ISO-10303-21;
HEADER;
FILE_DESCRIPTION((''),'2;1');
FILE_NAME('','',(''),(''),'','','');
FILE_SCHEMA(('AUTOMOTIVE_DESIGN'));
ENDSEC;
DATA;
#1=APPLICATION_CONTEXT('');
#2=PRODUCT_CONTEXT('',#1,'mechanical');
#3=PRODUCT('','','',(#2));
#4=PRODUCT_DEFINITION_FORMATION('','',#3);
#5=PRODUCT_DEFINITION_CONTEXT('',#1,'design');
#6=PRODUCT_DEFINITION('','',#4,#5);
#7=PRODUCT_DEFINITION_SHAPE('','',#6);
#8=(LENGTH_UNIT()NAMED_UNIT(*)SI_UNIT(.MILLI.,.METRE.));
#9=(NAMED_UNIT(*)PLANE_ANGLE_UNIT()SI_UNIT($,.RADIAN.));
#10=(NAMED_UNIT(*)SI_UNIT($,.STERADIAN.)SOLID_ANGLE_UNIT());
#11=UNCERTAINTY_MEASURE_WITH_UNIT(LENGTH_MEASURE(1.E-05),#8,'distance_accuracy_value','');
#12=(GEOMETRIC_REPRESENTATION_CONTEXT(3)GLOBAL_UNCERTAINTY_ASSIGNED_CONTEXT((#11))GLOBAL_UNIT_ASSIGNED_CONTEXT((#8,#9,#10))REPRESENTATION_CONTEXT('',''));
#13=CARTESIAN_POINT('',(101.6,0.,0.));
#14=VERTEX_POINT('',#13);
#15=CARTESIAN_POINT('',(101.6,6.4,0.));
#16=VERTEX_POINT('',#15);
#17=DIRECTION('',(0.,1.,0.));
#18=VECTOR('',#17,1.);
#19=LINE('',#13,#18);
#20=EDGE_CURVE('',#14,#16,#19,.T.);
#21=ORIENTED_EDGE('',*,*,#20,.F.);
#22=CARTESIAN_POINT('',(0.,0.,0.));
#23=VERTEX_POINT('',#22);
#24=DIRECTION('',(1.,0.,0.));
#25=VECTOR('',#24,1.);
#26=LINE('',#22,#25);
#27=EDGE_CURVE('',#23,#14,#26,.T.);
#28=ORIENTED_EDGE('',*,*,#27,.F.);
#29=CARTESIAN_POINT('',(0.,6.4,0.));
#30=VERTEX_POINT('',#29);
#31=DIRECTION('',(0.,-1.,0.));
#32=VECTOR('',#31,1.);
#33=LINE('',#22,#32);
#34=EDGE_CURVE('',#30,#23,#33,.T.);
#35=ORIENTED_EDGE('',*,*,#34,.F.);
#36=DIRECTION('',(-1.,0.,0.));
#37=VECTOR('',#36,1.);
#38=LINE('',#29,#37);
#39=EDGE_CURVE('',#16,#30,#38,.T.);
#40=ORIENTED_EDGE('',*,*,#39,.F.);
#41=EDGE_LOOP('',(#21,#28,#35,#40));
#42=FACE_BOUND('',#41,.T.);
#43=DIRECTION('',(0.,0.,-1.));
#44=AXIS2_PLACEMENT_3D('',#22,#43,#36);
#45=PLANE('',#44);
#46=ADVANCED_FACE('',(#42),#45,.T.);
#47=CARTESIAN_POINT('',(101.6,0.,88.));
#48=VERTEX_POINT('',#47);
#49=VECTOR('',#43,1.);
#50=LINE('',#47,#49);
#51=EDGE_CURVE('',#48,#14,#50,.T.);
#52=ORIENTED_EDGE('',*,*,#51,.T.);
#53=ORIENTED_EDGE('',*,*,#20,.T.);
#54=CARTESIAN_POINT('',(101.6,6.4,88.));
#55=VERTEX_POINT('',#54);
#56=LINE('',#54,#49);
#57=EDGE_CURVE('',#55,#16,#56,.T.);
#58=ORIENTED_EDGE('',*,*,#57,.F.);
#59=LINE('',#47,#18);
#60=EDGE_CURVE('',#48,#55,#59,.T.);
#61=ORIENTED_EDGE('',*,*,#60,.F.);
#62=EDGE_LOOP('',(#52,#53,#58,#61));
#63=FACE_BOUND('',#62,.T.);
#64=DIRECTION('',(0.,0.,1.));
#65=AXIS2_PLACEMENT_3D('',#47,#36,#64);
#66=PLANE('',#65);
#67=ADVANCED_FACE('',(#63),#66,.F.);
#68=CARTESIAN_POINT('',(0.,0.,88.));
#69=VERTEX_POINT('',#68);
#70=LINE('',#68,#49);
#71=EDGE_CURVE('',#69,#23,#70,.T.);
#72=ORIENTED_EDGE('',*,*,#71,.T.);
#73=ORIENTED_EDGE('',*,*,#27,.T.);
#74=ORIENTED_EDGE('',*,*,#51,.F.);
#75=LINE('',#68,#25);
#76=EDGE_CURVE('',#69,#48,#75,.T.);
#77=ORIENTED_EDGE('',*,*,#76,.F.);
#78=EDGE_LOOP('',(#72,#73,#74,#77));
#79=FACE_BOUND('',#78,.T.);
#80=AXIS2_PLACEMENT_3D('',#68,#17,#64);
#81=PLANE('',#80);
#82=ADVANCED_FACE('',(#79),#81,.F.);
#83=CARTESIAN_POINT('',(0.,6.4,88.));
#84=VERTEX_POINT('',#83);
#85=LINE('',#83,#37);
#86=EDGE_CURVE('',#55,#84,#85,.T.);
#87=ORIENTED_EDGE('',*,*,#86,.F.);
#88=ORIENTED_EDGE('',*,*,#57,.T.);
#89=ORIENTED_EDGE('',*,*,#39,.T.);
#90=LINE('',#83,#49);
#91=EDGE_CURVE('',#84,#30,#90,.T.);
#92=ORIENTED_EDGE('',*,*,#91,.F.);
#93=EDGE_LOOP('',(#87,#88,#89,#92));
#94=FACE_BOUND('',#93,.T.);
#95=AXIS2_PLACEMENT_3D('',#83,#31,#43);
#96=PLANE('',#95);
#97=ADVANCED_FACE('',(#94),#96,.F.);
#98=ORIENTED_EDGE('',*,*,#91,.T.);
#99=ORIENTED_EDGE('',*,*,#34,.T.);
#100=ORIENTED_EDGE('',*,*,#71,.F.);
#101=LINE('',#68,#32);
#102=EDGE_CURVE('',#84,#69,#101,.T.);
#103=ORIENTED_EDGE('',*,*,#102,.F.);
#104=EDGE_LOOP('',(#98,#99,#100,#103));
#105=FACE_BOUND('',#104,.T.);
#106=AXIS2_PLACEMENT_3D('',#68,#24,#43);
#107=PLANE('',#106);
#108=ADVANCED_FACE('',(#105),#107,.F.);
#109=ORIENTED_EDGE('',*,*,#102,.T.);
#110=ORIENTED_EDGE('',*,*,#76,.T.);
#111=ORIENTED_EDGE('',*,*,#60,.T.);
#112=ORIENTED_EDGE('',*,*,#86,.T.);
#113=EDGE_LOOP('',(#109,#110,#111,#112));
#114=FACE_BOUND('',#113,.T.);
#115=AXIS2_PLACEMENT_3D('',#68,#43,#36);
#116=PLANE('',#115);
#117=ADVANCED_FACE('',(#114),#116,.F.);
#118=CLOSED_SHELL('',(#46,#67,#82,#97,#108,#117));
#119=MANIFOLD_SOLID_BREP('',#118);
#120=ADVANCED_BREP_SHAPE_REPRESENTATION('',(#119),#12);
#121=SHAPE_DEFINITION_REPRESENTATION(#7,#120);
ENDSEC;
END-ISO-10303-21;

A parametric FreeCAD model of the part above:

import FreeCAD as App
import Part
import Sketcher

V = App.Vector
Q = App.Units.Quantity


def add_polygon(sketch, points):
    """Adds a closed chain of lines whose ends are joined by coincident constraints."""
    first, n = sketch.GeometryCount, len(points)
    for a, b in zip(points, points[1:] + points[:1]):
        sketch.addGeometry(Part.LineSegment(App.Vector(*a, 0), App.Vector(*b, 0)), False)
    for i in range(n):
        sketch.addConstraint(Sketcher.Constraint("Coincident", first + i, 2, first + (i + 1) % n, 1))

doc = App.newDocument("Part")
params = doc.addObject("Spreadsheet::Sheet", "Params")
for row, (alias, value) in enumerate([
    ("sketch1_width", "101.6 mm"),
    ("sketch1_height", "6.4 mm"),
    ("pad1_length", "88 mm"),
], start=1):
    params.set(f"A{row}", alias)
    params.set(f"B{row}", "=" + value)
    params.setAlias(f"B{row}", alias)

body = doc.addObject("PartDesign::Body", "Body")

sketch1 = body.newObject("Sketcher::SketchObject", "Sketch")
sketch1.AttachmentSupport = (doc.getObject("XY_Plane"), [""])
sketch1.MapMode = "FlatFace"
add_polygon(sketch1, [(0, 6), (0, 0), (102, 0), (102, 6)])
sketch1.addConstraint(Sketcher.Constraint("Vertical", 0))
sketch1.addConstraint(Sketcher.Constraint("Horizontal", 1))
sketch1.addConstraint(Sketcher.Constraint("Vertical", 2))
sketch1.addConstraint(Sketcher.Constraint("Horizontal", 3))
sketch1.addConstraint(Sketcher.Constraint("Coincident", 0, 2, -1, 1))
sketch1.addConstraint(Sketcher.Constraint("DistanceX", 1, 1, 1, 2, Q("101.6 mm")))
sketch1.addConstraint(Sketcher.Constraint("DistanceY", 0, 2, 0, 1, Q("6.4 mm")))
sketch1.setExpression("Constraints[9]", "Params.sketch1_width")
sketch1.setExpression("Constraints[10]", "Params.sketch1_height")
pad1 = body.newObject("PartDesign::Pad", "Pad")
pad1.Profile = sketch1
pad1.setExpression("Length", "Params.pad1_length")

doc.recompute()
